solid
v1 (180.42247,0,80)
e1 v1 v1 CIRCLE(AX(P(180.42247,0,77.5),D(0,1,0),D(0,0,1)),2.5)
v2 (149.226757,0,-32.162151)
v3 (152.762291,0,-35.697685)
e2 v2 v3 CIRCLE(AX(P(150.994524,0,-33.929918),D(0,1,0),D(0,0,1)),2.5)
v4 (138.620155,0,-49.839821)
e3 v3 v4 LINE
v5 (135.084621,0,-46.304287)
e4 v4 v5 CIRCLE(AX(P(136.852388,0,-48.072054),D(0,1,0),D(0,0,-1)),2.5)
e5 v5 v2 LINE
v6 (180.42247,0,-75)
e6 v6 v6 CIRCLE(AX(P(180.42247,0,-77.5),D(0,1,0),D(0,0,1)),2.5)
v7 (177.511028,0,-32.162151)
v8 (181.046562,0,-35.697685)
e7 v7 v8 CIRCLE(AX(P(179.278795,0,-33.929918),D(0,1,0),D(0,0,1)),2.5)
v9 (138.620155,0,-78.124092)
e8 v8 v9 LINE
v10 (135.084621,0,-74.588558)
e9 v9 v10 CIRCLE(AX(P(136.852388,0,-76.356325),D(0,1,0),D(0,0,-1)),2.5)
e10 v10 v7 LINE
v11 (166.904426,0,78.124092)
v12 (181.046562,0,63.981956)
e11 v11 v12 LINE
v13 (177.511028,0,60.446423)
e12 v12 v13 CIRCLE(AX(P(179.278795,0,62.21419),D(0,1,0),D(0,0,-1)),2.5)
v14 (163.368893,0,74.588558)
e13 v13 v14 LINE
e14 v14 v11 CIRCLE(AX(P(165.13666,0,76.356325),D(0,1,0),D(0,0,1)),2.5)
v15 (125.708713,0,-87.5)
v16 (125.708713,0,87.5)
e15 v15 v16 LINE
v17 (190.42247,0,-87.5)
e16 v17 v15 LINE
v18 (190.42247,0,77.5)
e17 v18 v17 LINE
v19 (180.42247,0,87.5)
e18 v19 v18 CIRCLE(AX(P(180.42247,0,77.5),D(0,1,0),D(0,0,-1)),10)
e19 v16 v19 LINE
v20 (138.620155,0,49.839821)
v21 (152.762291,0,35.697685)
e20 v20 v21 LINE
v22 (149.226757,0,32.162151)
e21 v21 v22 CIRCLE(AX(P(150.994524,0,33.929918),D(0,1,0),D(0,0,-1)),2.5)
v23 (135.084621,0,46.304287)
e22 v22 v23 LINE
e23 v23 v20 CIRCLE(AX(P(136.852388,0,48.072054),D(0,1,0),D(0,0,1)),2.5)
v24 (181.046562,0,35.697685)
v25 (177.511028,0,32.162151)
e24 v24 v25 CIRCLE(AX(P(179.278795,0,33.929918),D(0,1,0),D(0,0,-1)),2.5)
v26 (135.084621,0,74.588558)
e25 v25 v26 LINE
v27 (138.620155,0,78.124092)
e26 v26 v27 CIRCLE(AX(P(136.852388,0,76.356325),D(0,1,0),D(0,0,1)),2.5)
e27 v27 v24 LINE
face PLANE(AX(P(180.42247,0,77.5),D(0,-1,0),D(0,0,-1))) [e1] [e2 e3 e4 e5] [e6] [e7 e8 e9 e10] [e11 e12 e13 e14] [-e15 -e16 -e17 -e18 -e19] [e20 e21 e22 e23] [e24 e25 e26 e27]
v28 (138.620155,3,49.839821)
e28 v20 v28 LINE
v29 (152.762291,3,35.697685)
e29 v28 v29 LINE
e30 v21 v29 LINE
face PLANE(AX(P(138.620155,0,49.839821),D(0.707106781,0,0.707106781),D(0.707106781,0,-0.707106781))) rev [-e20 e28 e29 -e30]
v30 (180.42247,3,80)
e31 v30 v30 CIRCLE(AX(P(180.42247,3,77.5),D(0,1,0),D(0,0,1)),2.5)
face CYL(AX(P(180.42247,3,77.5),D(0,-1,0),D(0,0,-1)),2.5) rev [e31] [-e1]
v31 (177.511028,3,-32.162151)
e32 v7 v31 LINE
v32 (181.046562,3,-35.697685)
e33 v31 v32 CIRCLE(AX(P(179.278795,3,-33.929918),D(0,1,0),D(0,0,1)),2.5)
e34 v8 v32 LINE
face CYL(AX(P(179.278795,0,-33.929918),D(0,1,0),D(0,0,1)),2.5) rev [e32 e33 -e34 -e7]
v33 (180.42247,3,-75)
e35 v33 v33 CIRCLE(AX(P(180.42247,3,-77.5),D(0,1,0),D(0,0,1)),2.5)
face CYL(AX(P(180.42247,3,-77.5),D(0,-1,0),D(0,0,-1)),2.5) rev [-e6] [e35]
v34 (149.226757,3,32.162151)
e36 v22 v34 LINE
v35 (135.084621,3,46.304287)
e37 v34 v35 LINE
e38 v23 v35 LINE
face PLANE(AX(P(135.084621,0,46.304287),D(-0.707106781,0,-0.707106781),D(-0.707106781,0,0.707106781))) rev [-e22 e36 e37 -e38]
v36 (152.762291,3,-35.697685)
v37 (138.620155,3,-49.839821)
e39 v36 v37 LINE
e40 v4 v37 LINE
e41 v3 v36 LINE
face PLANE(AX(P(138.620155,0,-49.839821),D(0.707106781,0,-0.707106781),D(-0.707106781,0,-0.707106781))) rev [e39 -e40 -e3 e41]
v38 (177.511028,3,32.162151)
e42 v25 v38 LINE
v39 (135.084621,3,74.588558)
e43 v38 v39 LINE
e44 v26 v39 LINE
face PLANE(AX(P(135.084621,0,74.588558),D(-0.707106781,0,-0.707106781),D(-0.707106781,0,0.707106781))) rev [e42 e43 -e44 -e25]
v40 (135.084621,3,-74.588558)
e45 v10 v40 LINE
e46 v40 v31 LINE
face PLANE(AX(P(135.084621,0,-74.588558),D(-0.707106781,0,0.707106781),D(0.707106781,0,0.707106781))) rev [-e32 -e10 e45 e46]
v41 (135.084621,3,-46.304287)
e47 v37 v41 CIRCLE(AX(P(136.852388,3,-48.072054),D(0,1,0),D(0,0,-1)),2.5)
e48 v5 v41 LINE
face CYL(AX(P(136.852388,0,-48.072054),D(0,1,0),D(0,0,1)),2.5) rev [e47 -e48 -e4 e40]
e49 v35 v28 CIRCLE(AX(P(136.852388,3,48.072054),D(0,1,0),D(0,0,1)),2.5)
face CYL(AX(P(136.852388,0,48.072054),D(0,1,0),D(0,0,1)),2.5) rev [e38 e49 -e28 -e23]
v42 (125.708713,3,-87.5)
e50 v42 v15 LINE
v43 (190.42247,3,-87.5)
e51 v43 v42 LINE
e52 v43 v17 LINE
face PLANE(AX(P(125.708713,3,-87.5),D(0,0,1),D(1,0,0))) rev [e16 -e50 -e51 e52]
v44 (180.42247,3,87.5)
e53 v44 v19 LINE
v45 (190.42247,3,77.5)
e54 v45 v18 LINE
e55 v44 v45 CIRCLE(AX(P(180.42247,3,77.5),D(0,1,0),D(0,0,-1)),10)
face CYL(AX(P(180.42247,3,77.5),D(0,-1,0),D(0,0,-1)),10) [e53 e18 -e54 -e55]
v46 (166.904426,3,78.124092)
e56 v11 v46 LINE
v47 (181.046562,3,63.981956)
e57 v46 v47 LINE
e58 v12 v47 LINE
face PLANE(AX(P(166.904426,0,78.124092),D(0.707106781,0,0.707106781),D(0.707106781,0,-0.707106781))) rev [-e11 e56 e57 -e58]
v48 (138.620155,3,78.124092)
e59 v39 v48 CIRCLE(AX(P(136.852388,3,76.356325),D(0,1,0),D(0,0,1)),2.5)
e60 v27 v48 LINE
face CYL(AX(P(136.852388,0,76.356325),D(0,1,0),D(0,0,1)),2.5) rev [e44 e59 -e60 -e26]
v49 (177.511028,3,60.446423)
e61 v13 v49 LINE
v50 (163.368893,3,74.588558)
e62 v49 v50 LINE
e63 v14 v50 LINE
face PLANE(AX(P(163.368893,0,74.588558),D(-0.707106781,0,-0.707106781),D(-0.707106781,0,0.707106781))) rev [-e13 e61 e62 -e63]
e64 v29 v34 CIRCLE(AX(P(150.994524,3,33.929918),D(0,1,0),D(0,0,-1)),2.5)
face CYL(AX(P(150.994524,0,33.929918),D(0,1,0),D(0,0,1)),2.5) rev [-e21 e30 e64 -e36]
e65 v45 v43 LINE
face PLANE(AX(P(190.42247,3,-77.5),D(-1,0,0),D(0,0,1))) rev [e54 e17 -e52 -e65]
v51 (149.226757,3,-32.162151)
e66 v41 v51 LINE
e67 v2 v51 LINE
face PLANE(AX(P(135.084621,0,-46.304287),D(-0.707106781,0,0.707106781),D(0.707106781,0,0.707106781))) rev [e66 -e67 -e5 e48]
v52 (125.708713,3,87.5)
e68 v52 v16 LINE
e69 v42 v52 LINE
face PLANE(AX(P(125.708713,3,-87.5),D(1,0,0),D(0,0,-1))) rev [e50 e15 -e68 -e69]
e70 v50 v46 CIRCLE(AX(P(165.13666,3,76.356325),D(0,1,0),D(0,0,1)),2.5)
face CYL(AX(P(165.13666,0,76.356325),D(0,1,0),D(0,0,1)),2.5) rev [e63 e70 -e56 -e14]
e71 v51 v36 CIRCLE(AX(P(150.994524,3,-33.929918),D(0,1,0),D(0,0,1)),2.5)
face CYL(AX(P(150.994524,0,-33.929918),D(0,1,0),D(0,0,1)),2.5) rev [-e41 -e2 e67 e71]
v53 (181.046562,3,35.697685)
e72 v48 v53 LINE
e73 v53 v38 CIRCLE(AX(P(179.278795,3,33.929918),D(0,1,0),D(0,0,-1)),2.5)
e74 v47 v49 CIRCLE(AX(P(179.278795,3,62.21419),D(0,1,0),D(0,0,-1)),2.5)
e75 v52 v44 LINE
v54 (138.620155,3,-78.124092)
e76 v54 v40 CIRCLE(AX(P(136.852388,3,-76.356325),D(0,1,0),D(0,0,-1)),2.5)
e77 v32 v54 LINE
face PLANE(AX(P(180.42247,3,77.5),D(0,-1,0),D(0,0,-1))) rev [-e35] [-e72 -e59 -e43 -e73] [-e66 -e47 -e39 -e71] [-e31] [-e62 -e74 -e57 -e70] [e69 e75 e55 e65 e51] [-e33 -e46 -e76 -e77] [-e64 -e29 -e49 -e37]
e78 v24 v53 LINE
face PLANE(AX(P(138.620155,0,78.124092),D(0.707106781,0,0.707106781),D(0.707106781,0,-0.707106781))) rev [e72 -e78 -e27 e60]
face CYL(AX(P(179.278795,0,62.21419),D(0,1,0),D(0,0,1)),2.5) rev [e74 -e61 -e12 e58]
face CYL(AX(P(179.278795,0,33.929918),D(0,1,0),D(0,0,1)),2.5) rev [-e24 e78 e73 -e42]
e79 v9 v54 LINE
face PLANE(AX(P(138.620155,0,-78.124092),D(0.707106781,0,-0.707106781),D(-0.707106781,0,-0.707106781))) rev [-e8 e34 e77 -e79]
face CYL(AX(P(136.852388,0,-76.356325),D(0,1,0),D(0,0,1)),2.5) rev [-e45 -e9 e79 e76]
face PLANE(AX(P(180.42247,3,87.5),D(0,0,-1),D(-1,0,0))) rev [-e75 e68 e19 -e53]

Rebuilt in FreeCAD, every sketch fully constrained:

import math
import FreeCAD as App
import Part
import Sketcher

V = App.Vector

doc = App.newDocument("Part")
body = doc.addObject("PartDesign::Body", "Body")

sketch1 = doc.addObject("Sketcher::SketchObject", "Sketch")
body.addObject(sketch1)
sketch1.AttachmentSupport = (doc.XZ_Plane, [""])
sketch1.MapMode = "FlatFace"
sketch1.addGeometry(Part.LineSegment(V(190.4, -87.5, 0), V(125.7, -87.5, 0)), False)
sketch1.addGeometry(Part.LineSegment(V(125.7, -87.5, 0), V(125.7, 87.5, 0)), False)
sketch1.addGeometry(Part.LineSegment(V(125.7, 87.5, 0), V(180.4, 87.5, 0)), False)
sketch1.addGeometry(Part.ArcOfCircle(Part.Circle(V(180.4, 77.5, 0), V(0, 0, 1), 10), math.radians(0), math.radians(90)), False)
sketch1.addGeometry(Part.LineSegment(V(190.4, 77.5, 0), V(190.4, -87.5, 0)), False)
sketch1.addGeometry(Part.Circle(V(180.4, 77.5, 0), V(0, 0, 1), 2.5), False)
sketch1.addGeometry(Part.Circle(V(180.4, -77.5, 0), V(0, 0, 1), 2.5), False)
sketch1.addConstraint(Sketcher.Constraint("Coincident", 0, 2, 1, 1))
sketch1.addConstraint(Sketcher.Constraint("Coincident", 1, 2, 2, 1))
sketch1.addConstraint(Sketcher.Constraint("Tangent", 2, 2, 3, 2))
sketch1.addConstraint(Sketcher.Constraint("Tangent", 3, 1, 4, 1))
sketch1.addConstraint(Sketcher.Constraint("Coincident", 4, 2, 0, 1))
sketch1.addConstraint(Sketcher.Constraint("Horizontal", 0))
sketch1.addConstraint(Sketcher.Constraint("Vertical", 1))
sketch1.addConstraint(Sketcher.Constraint("Horizontal", 2))
sketch1.addConstraint(Sketcher.Constraint("Vertical", 4))
sketch1.addConstraint(Sketcher.Constraint("Coincident", 5, 3, 3, 3))
sketch1.addConstraint(Sketcher.Constraint("Equal", 5, 6))
sketch1.addConstraint(Sketcher.Constraint("Symmetric", 3, 3, 6, 3, -1))
sketch1.addConstraint(Sketcher.Constraint("Diameter", 5, 5.0))
sketch1.addConstraint(Sketcher.Constraint("Radius", 3, 10.0))
sketch1.addConstraint(Sketcher.Constraint("DistanceY", 1, 1, 1, 2, 175.0))
sketch1.addConstraint(Sketcher.Constraint("DistanceY", 6, 3, 3, 3, 155.0))
sketch1.addConstraint(Sketcher.Constraint("DistanceX", 0, 2, 0, 1, 64.713757))
sketch1.addConstraint(Sketcher.Constraint("DistanceX", -1, 1, 3, 3, 180.42247))
pad1 = doc.addObject("PartDesign::Pad", "Pad")
body.addObject(pad1)
pad1.Profile = sketch1
pad1.Length = 3
pad1.Reversed = True

sketch2 = doc.addObject("Sketcher::SketchObject", "Sketch001")
body.addObject(sketch2)
sketch2.AttachmentSupport = (doc.XZ_Plane, [""])
sketch2.MapMode = "FlatFace"
sketch2.AttachmentOffset = App.Placement(V(0, 0, -3), App.Rotation())
sketch2.addGeometry(Part.LineSegment(V(138.6, 78.1, 0), V(181, 35.7, 0)), False)
sketch2.addGeometry(Part.ArcOfCircle(Part.Circle(V(179.3, 33.9, 0), V(0, 0, 1), 2.5), math.radians(-135), math.radians(45)), False)
sketch2.addGeometry(Part.LineSegment(V(177.5, 32.2, 0), V(135.1, 74.6, 0)), False)
sketch2.addGeometry(Part.ArcOfCircle(Part.Circle(V(136.9, 76.4, 0), V(0, 0, 1), 2.5), math.radians(45), math.radians(225)), False)
sketch2.addGeometry(Part.LineSegment(V(166.9, 78.1, 0), V(181, 64, 0)), False)
sketch2.addGeometry(Part.ArcOfCircle(Part.Circle(V(179.3, 62.2, 0), V(0, 0, 1), 2.5), math.radians(-135), math.radians(45)), False)
sketch2.addGeometry(Part.LineSegment(V(177.5, 60.4, 0), V(163.4, 74.6, 0)), False)
sketch2.addGeometry(Part.ArcOfCircle(Part.Circle(V(165.1, 76.4, 0), V(0, 0, 1), 2.5), math.radians(45), math.radians(225)), False)
sketch2.addGeometry(Part.LineSegment(V(138.6, 49.8, 0), V(152.8, 35.7, 0)), False)
sketch2.addGeometry(Part.ArcOfCircle(Part.Circle(V(151, 33.9, 0), V(0, 0, 1), 2.5), math.radians(-135), math.radians(45)), False)
sketch2.addGeometry(Part.LineSegment(V(149.2, 32.2, 0), V(135.1, 46.3, 0)), False)
sketch2.addGeometry(Part.ArcOfCircle(Part.Circle(V(136.9, 48.1, 0), V(0, 0, 1), 2.5), math.radians(45), math.radians(225)), False)
sketch2.addGeometry(Part.LineSegment(V(135.1, -74.6, 0), V(177.5, -32.2, 0)), False)
sketch2.addGeometry(Part.ArcOfCircle(Part.Circle(V(179.3, -33.9, 0), V(0, 0, 1), 2.5), math.radians(-45), math.radians(135)), False)
sketch2.addGeometry(Part.LineSegment(V(181, -35.7, 0), V(138.6, -78.1, 0)), False)
sketch2.addGeometry(Part.ArcOfCircle(Part.Circle(V(136.9, -76.4, 0), V(0, 0, 1), 2.5), math.radians(135), math.radians(315)), False)
sketch2.addGeometry(Part.LineSegment(V(135.1, -46.3, 0), V(149.2, -32.2, 0)), False)
sketch2.addGeometry(Part.ArcOfCircle(Part.Circle(V(151, -33.9, 0), V(0, 0, 1), 2.5), math.radians(-45), math.radians(135)), False)
sketch2.addGeometry(Part.LineSegment(V(152.8, -35.7, 0), V(138.6, -49.8, 0)), False)
sketch2.addGeometry(Part.ArcOfCircle(Part.Circle(V(136.9, -48.1, 0), V(0, 0, 1), 2.5), math.radians(135), math.radians(315)), False)
sketch2.addConstraint(Sketcher.Constraint("Tangent", 0, 2, 1, 2))
sketch2.addConstraint(Sketcher.Constraint("Tangent", 1, 1, 2, 1))
sketch2.addConstraint(Sketcher.Constraint("Tangent", 2, 2, 3, 2))
sketch2.addConstraint(Sketcher.Constraint("Tangent", 3, 1, 0, 1))
sketch2.addConstraint(Sketcher.Constraint("Tangent", 4, 2, 5, 2))
sketch2.addConstraint(Sketcher.Constraint("Tangent", 5, 1, 6, 1))
sketch2.addConstraint(Sketcher.Constraint("Tangent", 6, 2, 7, 2))
sketch2.addConstraint(Sketcher.Constraint("Tangent", 7, 1, 4, 1))
sketch2.addConstraint(Sketcher.Constraint("Tangent", 8, 2, 9, 2))
sketch2.addConstraint(Sketcher.Constraint("Tangent", 9, 1, 10, 1))
sketch2.addConstraint(Sketcher.Constraint("Tangent", 10, 2, 11, 2))
sketch2.addConstraint(Sketcher.Constraint("Tangent", 11, 1, 8, 1))
sketch2.addConstraint(Sketcher.Constraint("Tangent", 12, 2, 13, 2))
sketch2.addConstraint(Sketcher.Constraint("Tangent", 13, 1, 14, 1))
sketch2.addConstraint(Sketcher.Constraint("Tangent", 14, 2, 15, 2))
sketch2.addConstraint(Sketcher.Constraint("Tangent", 15, 1, 12, 1))
sketch2.addConstraint(Sketcher.Constraint("Tangent", 16, 2, 17, 2))
sketch2.addConstraint(Sketcher.Constraint("Tangent", 17, 1, 18, 1))
sketch2.addConstraint(Sketcher.Constraint("Tangent", 18, 2, 19, 2))
sketch2.addConstraint(Sketcher.Constraint("Tangent", 19, 1, 16, 1))
sketch2.addConstraint(Sketcher.Constraint("Equal", 1, 3))
sketch2.addConstraint(Sketcher.Constraint("Equal", 3, 5))
sketch2.addConstraint(Sketcher.Constraint("Equal", 5, 7))
sketch2.addConstraint(Sketcher.Constraint("Equal", 7, 9))
sketch2.addConstraint(Sketcher.Constraint("Equal", 9, 11))
sketch2.addConstraint(Sketcher.Constraint("Equal", 11, 13))
sketch2.addConstraint(Sketcher.Constraint("Equal", 13, 15))
sketch2.addConstraint(Sketcher.Constraint("Equal", 15, 17))
sketch2.addConstraint(Sketcher.Constraint("Equal", 17, 19))
sketch2.addConstraint(Sketcher.Constraint("Symmetric", 1, 3, 13, 3, -1))
sketch2.addConstraint(Sketcher.Constraint("Symmetric", 3, 3, 15, 3, -1))
sketch2.addConstraint(Sketcher.Constraint("Symmetric", 9, 3, 17, 3, -1))
sketch2.addConstraint(Sketcher.Constraint("Symmetric", 11, 3, 19, 3, -1))
sketch2.addConstraint(Sketcher.Constraint("Parallel", 2, 4))
sketch2.addConstraint(Sketcher.Constraint("Parallel", 6, 8))
sketch2.addConstraint(Sketcher.Constraint("Perpendicular", 10, 12))
sketch2.addConstraint(Sketcher.Constraint("Horizontal", 3, 3, 7, 3))
sketch2.addConstraint(Sketcher.Constraint("Horizontal", 1, 3, 9, 3))
sketch2.addConstraint(Sketcher.Constraint("Vertical", 1, 3, 5, 3))
sketch2.addConstraint(Sketcher.Constraint("Vertical", 3, 3, 11, 3))
sketch2.addConstraint(Sketcher.Constraint("Equal", 6, 8))
sketch2.addConstraint(Sketcher.Constraint("Radius", 1, 2.5))
sketch2.addConstraint(Sketcher.Constraint("Distance", 0, 60.0))
sketch2.addConstraint(Sketcher.Constraint("Distance", 4, 20.0))
sketch2.addConstraint(Sketcher.Constraint("DistanceY", -1, 1, 1, 3, 33.929918))
sketch2.addConstraint(Sketcher.Constraint("DistanceX", -1, 1, 3, 3, 136.852388))
pocket1 = doc.addObject("PartDesign::Pocket", "Pocket")
body.addObject(pocket1)
pocket1.Profile = sketch2
pocket1.Type = "ThroughAll"
pocket1.Reversed = True

doc.recompute()
